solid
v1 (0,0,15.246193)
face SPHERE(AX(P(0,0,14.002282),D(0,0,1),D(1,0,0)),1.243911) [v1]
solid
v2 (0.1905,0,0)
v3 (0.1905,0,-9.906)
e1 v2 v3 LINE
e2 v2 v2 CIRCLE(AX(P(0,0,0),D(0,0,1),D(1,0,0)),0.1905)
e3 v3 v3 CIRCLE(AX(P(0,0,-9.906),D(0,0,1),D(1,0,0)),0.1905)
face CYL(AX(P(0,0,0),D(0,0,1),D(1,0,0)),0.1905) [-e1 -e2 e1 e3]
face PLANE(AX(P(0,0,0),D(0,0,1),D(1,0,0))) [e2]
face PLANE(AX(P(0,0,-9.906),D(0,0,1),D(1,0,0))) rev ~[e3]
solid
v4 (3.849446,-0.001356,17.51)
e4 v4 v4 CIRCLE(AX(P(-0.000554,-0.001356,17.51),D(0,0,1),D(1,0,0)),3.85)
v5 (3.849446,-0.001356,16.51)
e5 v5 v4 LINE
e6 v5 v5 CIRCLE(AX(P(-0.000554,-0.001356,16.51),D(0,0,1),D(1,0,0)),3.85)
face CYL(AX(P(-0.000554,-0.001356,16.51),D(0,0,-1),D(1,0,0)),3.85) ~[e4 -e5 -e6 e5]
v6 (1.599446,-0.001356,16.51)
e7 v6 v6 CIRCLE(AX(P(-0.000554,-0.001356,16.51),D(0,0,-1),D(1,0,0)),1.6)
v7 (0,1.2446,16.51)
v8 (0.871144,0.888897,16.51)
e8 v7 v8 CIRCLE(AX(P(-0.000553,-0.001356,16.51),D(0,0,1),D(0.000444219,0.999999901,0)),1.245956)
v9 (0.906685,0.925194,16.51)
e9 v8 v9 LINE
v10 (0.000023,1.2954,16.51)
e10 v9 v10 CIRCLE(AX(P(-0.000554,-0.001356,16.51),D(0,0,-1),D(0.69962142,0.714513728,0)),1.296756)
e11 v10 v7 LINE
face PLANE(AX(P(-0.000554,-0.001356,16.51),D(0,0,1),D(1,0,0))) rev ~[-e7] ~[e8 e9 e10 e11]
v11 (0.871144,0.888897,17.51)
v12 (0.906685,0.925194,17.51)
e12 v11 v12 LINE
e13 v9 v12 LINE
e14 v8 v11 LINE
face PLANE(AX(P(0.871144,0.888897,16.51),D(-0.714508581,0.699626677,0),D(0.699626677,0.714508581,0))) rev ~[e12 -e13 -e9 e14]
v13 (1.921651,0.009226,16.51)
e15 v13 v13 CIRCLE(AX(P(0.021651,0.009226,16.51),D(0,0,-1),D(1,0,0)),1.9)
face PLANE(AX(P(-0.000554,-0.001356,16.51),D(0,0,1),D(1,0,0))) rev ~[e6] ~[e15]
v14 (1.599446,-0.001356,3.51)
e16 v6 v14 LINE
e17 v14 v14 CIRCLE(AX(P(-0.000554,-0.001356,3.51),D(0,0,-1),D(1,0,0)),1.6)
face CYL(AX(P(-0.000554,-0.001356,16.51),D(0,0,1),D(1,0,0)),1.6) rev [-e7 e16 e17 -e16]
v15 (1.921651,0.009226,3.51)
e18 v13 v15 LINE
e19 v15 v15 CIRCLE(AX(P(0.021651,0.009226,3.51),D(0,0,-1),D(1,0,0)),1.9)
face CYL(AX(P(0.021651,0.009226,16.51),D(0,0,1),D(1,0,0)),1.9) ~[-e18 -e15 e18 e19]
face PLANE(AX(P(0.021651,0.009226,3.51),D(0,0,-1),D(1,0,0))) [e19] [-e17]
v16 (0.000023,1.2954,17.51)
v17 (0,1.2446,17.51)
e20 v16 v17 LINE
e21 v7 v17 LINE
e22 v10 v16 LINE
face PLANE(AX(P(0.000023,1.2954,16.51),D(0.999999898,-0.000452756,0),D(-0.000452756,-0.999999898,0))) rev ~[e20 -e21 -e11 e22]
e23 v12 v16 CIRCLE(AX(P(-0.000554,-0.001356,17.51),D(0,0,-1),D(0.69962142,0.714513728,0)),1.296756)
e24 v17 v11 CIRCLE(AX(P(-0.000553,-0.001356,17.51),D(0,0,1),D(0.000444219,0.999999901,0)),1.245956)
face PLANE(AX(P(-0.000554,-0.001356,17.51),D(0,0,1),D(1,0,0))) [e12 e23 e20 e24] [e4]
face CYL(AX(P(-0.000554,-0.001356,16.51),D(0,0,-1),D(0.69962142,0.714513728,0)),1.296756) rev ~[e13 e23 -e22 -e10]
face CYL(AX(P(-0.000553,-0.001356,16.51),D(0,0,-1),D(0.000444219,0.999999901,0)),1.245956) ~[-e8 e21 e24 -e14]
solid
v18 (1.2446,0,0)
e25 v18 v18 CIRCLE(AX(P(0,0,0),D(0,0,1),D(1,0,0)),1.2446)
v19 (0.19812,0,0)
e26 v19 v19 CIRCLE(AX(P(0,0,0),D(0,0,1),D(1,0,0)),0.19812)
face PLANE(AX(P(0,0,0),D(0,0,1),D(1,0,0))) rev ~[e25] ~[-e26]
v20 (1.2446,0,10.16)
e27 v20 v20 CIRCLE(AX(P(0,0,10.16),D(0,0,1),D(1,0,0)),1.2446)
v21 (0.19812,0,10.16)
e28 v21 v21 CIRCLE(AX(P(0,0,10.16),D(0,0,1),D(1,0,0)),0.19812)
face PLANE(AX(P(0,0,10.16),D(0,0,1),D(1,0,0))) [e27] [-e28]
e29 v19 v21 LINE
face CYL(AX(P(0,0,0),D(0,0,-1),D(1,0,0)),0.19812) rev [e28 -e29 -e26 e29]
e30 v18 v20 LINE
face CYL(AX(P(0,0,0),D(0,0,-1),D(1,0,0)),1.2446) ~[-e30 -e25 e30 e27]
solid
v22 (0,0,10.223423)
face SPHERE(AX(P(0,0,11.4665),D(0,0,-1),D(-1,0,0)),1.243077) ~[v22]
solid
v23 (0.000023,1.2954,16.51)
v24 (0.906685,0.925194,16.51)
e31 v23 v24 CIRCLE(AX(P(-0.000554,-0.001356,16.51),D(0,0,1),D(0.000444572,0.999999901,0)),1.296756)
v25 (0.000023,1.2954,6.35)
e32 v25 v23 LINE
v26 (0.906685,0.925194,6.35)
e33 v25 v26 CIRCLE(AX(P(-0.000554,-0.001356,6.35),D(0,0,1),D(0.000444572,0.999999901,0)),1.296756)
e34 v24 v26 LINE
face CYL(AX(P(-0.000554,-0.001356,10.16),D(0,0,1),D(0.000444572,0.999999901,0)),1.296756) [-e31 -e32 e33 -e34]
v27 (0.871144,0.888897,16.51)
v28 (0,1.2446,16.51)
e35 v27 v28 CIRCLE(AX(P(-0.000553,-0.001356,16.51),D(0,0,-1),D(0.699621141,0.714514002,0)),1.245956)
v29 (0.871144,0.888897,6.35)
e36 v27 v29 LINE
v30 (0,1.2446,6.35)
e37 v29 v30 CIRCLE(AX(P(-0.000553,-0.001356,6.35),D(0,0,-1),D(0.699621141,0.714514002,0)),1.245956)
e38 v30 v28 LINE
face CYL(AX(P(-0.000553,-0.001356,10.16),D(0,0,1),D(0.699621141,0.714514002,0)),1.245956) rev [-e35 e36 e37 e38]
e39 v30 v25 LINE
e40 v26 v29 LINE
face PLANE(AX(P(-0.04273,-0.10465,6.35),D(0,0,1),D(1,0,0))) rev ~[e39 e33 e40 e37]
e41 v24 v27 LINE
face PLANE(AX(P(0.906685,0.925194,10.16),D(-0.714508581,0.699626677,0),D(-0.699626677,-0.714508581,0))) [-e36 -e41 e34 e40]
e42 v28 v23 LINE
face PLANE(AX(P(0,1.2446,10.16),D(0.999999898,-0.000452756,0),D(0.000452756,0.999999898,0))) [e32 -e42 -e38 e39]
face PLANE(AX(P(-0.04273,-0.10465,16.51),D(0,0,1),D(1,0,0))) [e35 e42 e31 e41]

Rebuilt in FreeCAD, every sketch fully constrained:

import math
import FreeCAD as App
import Part
import Sketcher

V = App.Vector
Q = App.Units.Quantity

doc = App.newDocument("Part")
body = doc.addObject("PartDesign::Body", "Body")

# Sketch on XY plane
sketch1 = doc.addObject("Sketcher::SketchObject", "Sketch")
body.addObject(sketch1)
sketch1.AttachmentSupport = (doc.XY_Plane, [""])
sketch1.MapMode = "FlatFace"
sketch1.addGeometry([
    Part.Circle(V(0, 0, 0), V(0, 0, 1), 1.2446),
    Part.Circle(V(0, 0, 0), V(0, 0, 1), 0.19812),
], False)
sketch1.addConstraint([
    Sketcher.Constraint("Coincident", 0, 3, -1, 1),
    Sketcher.Constraint("Coincident", 1, 3, -1, 1),
    Sketcher.Constraint("Diameter", 0, Q("0.098 in")),
    Sketcher.Constraint("Diameter", 1, Q("0.0156 in")),
])
pad1 = doc.addObject("PartDesign::Pad", "Pad")
body.addObject(pad1)
pad1.Profile = sketch1
pad1.Length = Q("0.4 in")
body2 = doc.addObject("PartDesign::Body", "Body001")

# Sketch on XY plane
sketch2 = doc.addObject("Sketcher::SketchObject", "Sketch001")
body2.addObject(sketch2)
sketch2.AttachmentSupport = (doc.getObject("XY_Plane001"), [""])
sketch2.MapMode = "FlatFace"
sketch2.addGeometry(Part.Circle(V(0, 0, 0), V(0, 0, 1), 0.1905), False)
sketch2.addConstraint([
    Sketcher.Constraint("Coincident", 0, 3, -1, 1),
    Sketcher.Constraint("Diameter", 0, Q("0.015 in")),
])
pad2 = doc.addObject("PartDesign::Pad", "Pad001")
body2.addObject(pad2)
pad2.Profile = sketch2
pad2.Length = Q("0.39 in")
pad2.Reversed = True
body3 = doc.addObject("PartDesign::Body", "Body002")

# Sketch on XY plane
sketch3 = doc.addObject("Sketcher::SketchObject", "Sketch002")
body3.addObject(sketch3)
sketch3.AttachmentSupport = (doc.getObject("XY_Plane002"), [""])
sketch3.MapMode = "FlatFace"
sketch3.AttachmentOffset = App.Placement(V(0, 0, 0.4 * 25.4), App.Rotation())
sketch3.addGeometry([
    Part.ArcOfCircle(Part.Circle(V(-0.000553, -0.001356, 0), V(0, 0, 1), 1.245956), math.radians(89.974548), math.radians(405.603384)),
    Part.LineSegment(V(0, 1.2446, 0), V(0.000023, 1.2954, 0)),
    Part.ArcOfCircle(Part.Circle(V(-0.000554, -0.001356, 0), V(0, 0, 1), 1.296756), math.radians(89.974528), math.radians(405.603362)),
    Part.LineSegment(V(0.906685, 0.925194, 0), V(0.871144, 0.888897, 0)),
], False)
sketch3.addConstraint([
    Sketcher.Constraint("Coincident", 0, 1, 1, 1),
    Sketcher.Constraint("Coincident", 1, 2, 2, 1),
    Sketcher.Constraint("Coincident", 2, 2, 3, 1),
    Sketcher.Constraint("Coincident", 3, 2, 0, 2),
    Sketcher.Constraint("Coincident", 2, 3, 0, 3),
    Sketcher.Constraint("PointOnObject", 0, 1, -2),
    Sketcher.Constraint("Distance", 1, Q("0.002 in")),
    Sketcher.Constraint("DistanceY", -1, 1, 0, 1, Q("0.049 in")),
    Sketcher.Constraint("Radius", 0, 1.245956),
    Sketcher.Constraint("DistanceX", 2, 3, 2, 2, 0.907239),
    Sketcher.Constraint("DistanceX", 3, 2, 2, 2, 0.035541),
    Sketcher.Constraint("DistanceX", 1, 2, 3, 2, 0.871121),
    Sketcher.Constraint("DistanceX", 0, 3, -1, 1, 0.000553),
])
pad3 = doc.addObject("PartDesign::Pad", "Pad002")
body3.addObject(pad3)
pad3.Profile = sketch3
pad3.Type = "TwoLengths"
pad3.Length = Q("0.25 in")
pad3.Length2 = Q("0.15 in")
body4 = doc.addObject("PartDesign::Body", "Body003")

# Sketch on XZ plane
sketch4 = doc.addObject("Sketcher::SketchObject", "Sketch003")
body4.addObject(sketch4)
sketch4.AttachmentSupport = (doc.getObject("XZ_Plane003"), [""])
sketch4.MapMode = "FlatFace"
sketch4.addGeometry([
    Part.ArcOfCircle(Part.Circle(V(0, 11.4665, 0), V(0, 0, 1), 1.243077), math.radians(90), math.radians(270)),
    Part.LineSegment(V(0, 10.223423, 0), V(0, 12.709577, 0)),
], False)
sketch4.addConstraint([
    Sketcher.Constraint("Coincident", 0, 1, 1, 2),
    Sketcher.Constraint("Coincident", 1, 1, 0, 2),
    Sketcher.Constraint("Vertical", 1),
    Sketcher.Constraint("PointOnObject", 0, 3, -2),
    Sketcher.Constraint("PointOnObject", 0, 1, -2),
    Sketcher.Constraint("Radius", 0, 1.243077),
    Sketcher.Constraint("DistanceY", -1, 1, 0, 3, 11.4665),
])
revolution = doc.addObject("PartDesign::Revolution", "Revolution")
body4.addObject(revolution)
revolution.Profile = sketch4
revolution.ReferenceAxis = (sketch4, ["V_Axis"])
revolution.Angle = 360
body5 = doc.addObject("PartDesign::Body", "Body004")

# Sketch on XZ plane
sketch5 = doc.addObject("Sketcher::SketchObject", "Sketch004")
body5.addObject(sketch5)
sketch5.AttachmentSupport = (doc.getObject("XZ_Plane004"), [""])
sketch5.MapMode = "FlatFace"
sketch5.addGeometry([
    Part.LineSegment(V(0, 15.246193, 0), V(0, 12.758371, 0)),
    Part.ArcOfCircle(Part.Circle(V(0, 14.002282, 0), V(0, 0, 1), 1.243911), math.radians(-90), math.radians(90)),
], False)
sketch5.addConstraint([
    Sketcher.Constraint("Coincident", 0, 1, 1, 2),
    Sketcher.Constraint("Coincident", 1, 1, 0, 2),
    Sketcher.Constraint("Vertical", 0),
    Sketcher.Constraint("PointOnObject", 1, 3, -2),
    Sketcher.Constraint("PointOnObject", 0, 1, -2),
    Sketcher.Constraint("Radius", 1, 1.243911),
    Sketcher.Constraint("DistanceY", -1, 1, 1, 3, 14.002282),
])
revolution2 = doc.addObject("PartDesign::Revolution", "Revolution001")
body5.addObject(revolution2)
revolution2.Profile = sketch5
revolution2.ReferenceAxis = (sketch5, ["V_Axis"])
revolution2.Angle = 360
body6 = doc.addObject("PartDesign::Body", "Body005")

# Sketch on XY plane
sketch6 = doc.addObject("Sketcher::SketchObject", "Sketch005")
body6.addObject(sketch6)
sketch6.AttachmentSupport = (doc.getObject("XY_Plane005"), [""])
sketch6.MapMode = "FlatFace"
sketch6.AttachmentOffset = App.Placement(V(0, 0, 0.65 * 25.4), App.Rotation())
sketch6.addGeometry([
    Part.Circle(V(-0.000554, -0.001356, 0), V(0, 0, 1), 3.85),  # 0
    Part.LineSegment(V(0.000023, 1.2954, 0), V(0, 1.2446, 0)),  # 1
    Part.ArcOfCircle(Part.Circle(V(-0.000553, -0.001356, 0), V(0, 0, 1), 1.245956), math.radians(89.974548), math.radians(405.603384)),  # 2
    Part.LineSegment(V(0.871144, 0.888897, 0), V(0.906685, 0.925194, 0)),  # 3
    Part.ArcOfCircle(Part.Circle(V(-0.000554, -0.001356, 0), V(0, 0, 1), 1.296756), math.radians(89.974528), math.radians(405.603362)),  # 4
], False)
sketch6.addConstraint([
    Sketcher.Constraint("Coincident", 1, 2, 2, 1),
    Sketcher.Constraint("Coincident", 2, 2, 3, 1),
    Sketcher.Constraint("Coincident", 3, 2, 4, 2),
    Sketcher.Constraint("Coincident", 4, 1, 1, 1),
    Sketcher.Constraint("Coincident", 2, 3, 0, 3),
    Sketcher.Constraint("Coincident", 4, 3, 0, 3),
    Sketcher.Constraint("PointOnObject", 1, 2, -2),
    Sketcher.Constraint("Diameter", 0, 7.7),
    Sketcher.Constraint("Distance", 1, Q("0.002 in")),
    Sketcher.Constraint("DistanceY", -1, 1, 1, 2, Q("0.049 in")),
    Sketcher.Constraint("Radius", 2, 1.245956),
    Sketcher.Constraint("DistanceX", 0, 3, 2, 2, 0.871698),
    Sketcher.Constraint("DistanceX", 2, 2, 3, 2, 0.035541),
    Sketcher.Constraint("DistanceX", 4, 1, 2, 2, 0.871121),
    Sketcher.Constraint("DistanceX", 0, 3, -1, 1, 0.000554),
])
pad4 = doc.addObject("PartDesign::Pad", "Pad003")
body6.addObject(pad4)
pad4.Profile = sketch6
pad4.Length = 1

# Sketch on XY plane
sketch7 = doc.addObject("Sketcher::SketchObject", "Sketch006")
body6.addObject(sketch7)
sketch7.AttachmentSupport = (doc.getObject("XY_Plane005"), [""])
sketch7.MapMode = "FlatFace"
sketch7.AttachmentOffset = App.Placement(V(0, 0, 0.65 * 25.4), App.Rotation())
sketch7.addGeometry([
    Part.Circle(V(0.021651, 0.009226, 0), V(0, 0, 1), 1.9),
    Part.Circle(V(-0.000554, -0.001356, 0), V(0, 0, 1), 1.6),
], False)
sketch7.addConstraint([
    Sketcher.Constraint("Diameter", 0, 3.8),
    Sketcher.Constraint("Diameter", 1, 3.2),
    Sketcher.Constraint("DistanceX", -1, 1, 0, 3, 0.021651),
    Sketcher.Constraint("DistanceY", 1, 3, 0, 3, 0.010582),
    Sketcher.Constraint("DistanceY", -1, 1, 0, 3, 0.009226),
    Sketcher.Constraint("DistanceX", 1, 3, -1, 1, 0.000554),
])
pad5 = doc.addObject("PartDesign::Pad", "Pad004")
body6.addObject(pad5)
pad5.Profile = sketch7
pad5.Length = 13
pad5.Reversed = True

doc.recompute()
